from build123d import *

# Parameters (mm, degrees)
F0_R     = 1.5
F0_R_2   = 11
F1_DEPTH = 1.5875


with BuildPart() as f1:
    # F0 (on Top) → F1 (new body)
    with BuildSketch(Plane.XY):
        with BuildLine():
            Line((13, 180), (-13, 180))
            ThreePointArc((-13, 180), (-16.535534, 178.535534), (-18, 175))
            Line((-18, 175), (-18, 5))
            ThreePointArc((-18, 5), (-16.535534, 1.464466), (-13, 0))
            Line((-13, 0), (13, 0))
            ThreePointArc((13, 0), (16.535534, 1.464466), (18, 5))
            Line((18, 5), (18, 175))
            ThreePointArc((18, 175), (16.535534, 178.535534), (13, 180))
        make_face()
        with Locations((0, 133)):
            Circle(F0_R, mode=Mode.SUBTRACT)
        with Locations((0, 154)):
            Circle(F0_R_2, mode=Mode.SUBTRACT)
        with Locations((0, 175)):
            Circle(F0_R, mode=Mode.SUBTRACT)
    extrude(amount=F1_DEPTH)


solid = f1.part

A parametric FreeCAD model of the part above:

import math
import FreeCAD as App
import Part
import Sketcher

doc = App.newDocument("Part")
body = doc.addObject("PartDesign::Body", "Body")

sketch1 = doc.addObject("Sketcher::SketchObject", "Sketch")
body.addObject(sketch1)
sketch1.AttachmentSupport = (doc.XY_Plane, [""])
sketch1.MapMode = "FlatFace"
sketch1.addGeometry([
    Part.LineSegment(App.Vector(13, 180, 0), App.Vector(-13, 180, 0)),
    Part.ArcOfCircle(Part.Circle(App.Vector(-13, 175, 0), App.Vector(0, 0, 1), 5), math.radians(89.999996), math.radians(180.000004)),
    Part.LineSegment(App.Vector(-18, 175, 0), App.Vector(-18, 5, 0)),
    Part.ArcOfCircle(Part.Circle(App.Vector(-13, 5, 0), App.Vector(0, 0, 1), 5), math.radians(179.999996), math.radians(270.000004)),
    Part.LineSegment(App.Vector(-13, 0, 0), App.Vector(13, 0, 0)),
    Part.ArcOfCircle(Part.Circle(App.Vector(13, 5, 0), App.Vector(0, 0, 1), 5), math.radians(-90.000004), math.radians(0.000004)),
    Part.LineSegment(App.Vector(18, 5, 0), App.Vector(18, 175, 0)),
    Part.ArcOfCircle(Part.Circle(App.Vector(13, 175, 0), App.Vector(0, 0, 1), 5), math.radians(-0.000004), math.radians(90.000004)),
    Part.Circle(App.Vector(0, 133, 0), App.Vector(0, 0, 1), 1.5),
    Part.Circle(App.Vector(0, 154, 0), App.Vector(0, 0, 1), 11),
    Part.Circle(App.Vector(0, 175, 0), App.Vector(0, 0, 1), 1.5),
], False)
sketch1.addConstraint([
    Sketcher.Constraint("Tangent", 0, 2, 1, 1),
    Sketcher.Constraint("Tangent", 1, 2, 2, 1),
    Sketcher.Constraint("Tangent", 2, 2, 3, 1),
    Sketcher.Constraint("Tangent", 3, 2, 4, 1),
    Sketcher.Constraint("Tangent", 4, 2, 5, 1),
    Sketcher.Constraint("Tangent", 5, 2, 6, 1),
    Sketcher.Constraint("Tangent", 6, 2, 7, 1),
    Sketcher.Constraint("Tangent", 7, 2, 0, 1),
    Sketcher.Constraint("Horizontal", 0),
    Sketcher.Constraint("Vertical", 2),
    Sketcher.Constraint("Horizontal", 4),
    Sketcher.Constraint("Vertical", 6),
    Sketcher.Constraint("Equal", 1, 3),
    Sketcher.Constraint("Equal", 3, 5),
    Sketcher.Constraint("Equal", 5, 7),
    Sketcher.Constraint("Equal", 8, 10),
    Sketcher.Constraint("Symmetric", 3, 2, 4, 2, -1, 1),
    Sketcher.Constraint("PointOnObject", 8, 3, -2),
    Sketcher.Constraint("PointOnObject", 9, 3, -2),
    Sketcher.Constraint("PointOnObject", 10, 3, -2),
    Sketcher.Constraint("Horizontal", 7, 3, 10, 3),
    Sketcher.Constraint("Diameter", 8, 3.0),
    Sketcher.Constraint("Diameter", 9, 22.0),
    Sketcher.Constraint("Radius", 1, 5.0),
    Sketcher.Constraint("DistanceX", 0, 2, 0, 1, 26.0),
    Sketcher.Constraint("DistanceY", 2, 2, 2, 1, 170.0),
    Sketcher.Constraint("DistanceY", -1, 1, 8, 3, 133.0),
    Sketcher.Constraint("DistanceY", -1, 1, 9, 3, 154.0),
])
pad1 = doc.addObject("PartDesign::Pad", "Pad")
body.addObject(pad1)
pad1.Profile = sketch1
pad1.Length = 1.5875

doc.recompute()
